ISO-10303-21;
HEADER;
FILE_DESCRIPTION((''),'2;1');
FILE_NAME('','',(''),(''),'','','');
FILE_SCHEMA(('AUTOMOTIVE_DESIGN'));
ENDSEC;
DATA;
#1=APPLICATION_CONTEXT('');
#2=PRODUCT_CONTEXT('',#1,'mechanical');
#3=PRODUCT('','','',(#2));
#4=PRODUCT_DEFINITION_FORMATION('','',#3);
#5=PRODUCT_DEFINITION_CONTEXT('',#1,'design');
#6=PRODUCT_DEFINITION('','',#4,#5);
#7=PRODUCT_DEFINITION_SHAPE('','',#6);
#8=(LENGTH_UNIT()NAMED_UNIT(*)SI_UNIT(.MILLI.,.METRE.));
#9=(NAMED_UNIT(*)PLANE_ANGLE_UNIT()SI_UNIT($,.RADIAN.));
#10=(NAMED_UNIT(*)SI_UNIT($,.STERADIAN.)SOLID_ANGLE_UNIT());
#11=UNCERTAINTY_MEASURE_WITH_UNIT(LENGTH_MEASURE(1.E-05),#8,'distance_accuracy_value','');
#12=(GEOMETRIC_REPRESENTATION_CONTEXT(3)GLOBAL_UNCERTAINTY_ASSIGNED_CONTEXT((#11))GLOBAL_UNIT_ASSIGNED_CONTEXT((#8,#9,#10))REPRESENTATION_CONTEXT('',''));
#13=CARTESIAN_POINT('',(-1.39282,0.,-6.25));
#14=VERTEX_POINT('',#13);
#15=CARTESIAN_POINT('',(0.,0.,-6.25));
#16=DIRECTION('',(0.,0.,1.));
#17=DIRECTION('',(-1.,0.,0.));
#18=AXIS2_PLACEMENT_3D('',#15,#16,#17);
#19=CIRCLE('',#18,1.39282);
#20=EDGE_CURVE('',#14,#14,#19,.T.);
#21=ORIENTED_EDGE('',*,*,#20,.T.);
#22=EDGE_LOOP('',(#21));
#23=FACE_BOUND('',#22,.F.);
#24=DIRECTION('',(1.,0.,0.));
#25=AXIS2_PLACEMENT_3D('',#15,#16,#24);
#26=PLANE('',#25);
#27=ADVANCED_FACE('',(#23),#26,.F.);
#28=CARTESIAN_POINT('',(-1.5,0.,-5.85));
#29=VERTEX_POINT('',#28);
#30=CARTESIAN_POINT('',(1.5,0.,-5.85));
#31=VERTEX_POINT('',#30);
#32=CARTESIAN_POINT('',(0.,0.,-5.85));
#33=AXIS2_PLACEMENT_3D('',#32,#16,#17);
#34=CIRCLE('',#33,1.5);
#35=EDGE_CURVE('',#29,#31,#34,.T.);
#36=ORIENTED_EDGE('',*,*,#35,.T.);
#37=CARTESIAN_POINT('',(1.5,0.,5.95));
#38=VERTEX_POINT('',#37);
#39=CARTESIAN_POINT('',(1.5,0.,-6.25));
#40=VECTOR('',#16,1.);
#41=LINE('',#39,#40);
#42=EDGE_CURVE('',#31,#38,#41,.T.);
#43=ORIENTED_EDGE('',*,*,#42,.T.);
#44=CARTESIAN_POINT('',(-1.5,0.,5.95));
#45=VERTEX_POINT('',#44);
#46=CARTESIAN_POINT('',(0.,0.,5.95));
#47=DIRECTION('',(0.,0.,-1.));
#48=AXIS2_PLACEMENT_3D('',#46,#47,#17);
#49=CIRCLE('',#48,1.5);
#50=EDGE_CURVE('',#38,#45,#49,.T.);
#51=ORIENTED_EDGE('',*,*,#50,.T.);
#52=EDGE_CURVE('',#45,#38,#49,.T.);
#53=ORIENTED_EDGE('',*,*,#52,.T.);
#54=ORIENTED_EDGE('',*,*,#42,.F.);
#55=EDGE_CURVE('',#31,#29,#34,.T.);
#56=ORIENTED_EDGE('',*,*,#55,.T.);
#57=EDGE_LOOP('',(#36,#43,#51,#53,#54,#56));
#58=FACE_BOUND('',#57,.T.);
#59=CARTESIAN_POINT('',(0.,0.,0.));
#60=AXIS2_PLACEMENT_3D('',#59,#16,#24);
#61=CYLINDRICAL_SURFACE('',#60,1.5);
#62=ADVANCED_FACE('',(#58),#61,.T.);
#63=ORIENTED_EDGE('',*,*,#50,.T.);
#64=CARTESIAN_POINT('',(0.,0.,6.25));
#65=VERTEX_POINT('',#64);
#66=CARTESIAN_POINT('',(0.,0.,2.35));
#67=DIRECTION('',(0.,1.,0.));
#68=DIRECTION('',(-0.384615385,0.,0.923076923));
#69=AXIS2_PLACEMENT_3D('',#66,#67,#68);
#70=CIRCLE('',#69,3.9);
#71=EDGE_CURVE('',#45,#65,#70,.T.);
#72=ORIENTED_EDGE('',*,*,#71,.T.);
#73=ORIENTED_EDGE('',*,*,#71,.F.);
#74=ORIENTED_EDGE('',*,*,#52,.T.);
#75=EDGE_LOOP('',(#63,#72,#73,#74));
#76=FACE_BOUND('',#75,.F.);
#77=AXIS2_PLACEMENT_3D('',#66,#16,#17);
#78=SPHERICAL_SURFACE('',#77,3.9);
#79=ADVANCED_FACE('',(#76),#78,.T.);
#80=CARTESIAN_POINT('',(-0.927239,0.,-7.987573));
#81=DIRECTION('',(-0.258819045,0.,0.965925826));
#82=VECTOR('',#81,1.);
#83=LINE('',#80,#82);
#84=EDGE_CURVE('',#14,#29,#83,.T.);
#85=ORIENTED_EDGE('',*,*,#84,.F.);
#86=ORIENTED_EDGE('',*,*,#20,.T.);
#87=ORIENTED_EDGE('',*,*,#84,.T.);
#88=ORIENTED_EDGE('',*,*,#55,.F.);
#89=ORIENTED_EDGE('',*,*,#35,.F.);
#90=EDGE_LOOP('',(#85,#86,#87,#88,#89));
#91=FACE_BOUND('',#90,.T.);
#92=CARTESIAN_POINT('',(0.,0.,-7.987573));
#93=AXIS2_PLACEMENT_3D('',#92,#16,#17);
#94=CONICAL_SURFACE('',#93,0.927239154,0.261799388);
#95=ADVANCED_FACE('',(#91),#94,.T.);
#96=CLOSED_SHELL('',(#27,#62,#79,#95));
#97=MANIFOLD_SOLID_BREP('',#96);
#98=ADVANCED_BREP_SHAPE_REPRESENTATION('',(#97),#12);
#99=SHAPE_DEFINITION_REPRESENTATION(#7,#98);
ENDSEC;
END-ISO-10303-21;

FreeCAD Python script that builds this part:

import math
import FreeCAD as App
import Part
import Sketcher

V = App.Vector
Q = App.Units.Quantity


def add_polygon(sketch, points):
    """Adds a closed chain of lines whose ends are joined by coincident constraints."""
    first, n = sketch.GeometryCount, len(points)
    for a, b in zip(points, points[1:] + points[:1]):
        sketch.addGeometry(Part.LineSegment(App.Vector(*a, 0), App.Vector(*b, 0)), False)
    for i in range(n):
        sketch.addConstraint(Sketcher.Constraint("Coincident", first + i, 2, first + (i + 1) % n, 1))

doc = App.newDocument("Part")
body = doc.addObject("PartDesign::Body", "Body")

sketch1 = body.newObject("Sketcher::SketchObject", "Sketch")
sketch1.AttachmentSupport = (doc.getObject("XY_Plane"), [""])
sketch1.MapMode = "FlatFace"
sketch1.addGeometry(Part.Circle(V(0, 0, 0), V(0, 0, 1), 1.5), False)
sketch1.addConstraint([
    Sketcher.Constraint("Coincident", 0, 3, -1, 1),
    Sketcher.Constraint("Diameter", 0, Q("3 mm")),
])
pad1 = body.newObject("PartDesign::Pad", "Pad")
pad1.Profile = sketch1
pad1.Length = 12.5
pad1.Midplane = True

sketch2 = body.newObject("Sketcher::SketchObject", "Sketch001")
sketch2.AttachmentSupport = (doc.getObject("XZ_Plane"), [""])
sketch2.MapMode = "FlatFace"
sketch2.addGeometry([
    Part.LineSegment(V(-1.66, 5.95, 0), V(-1.5, 5.95, 0)),
    Part.ArcOfCircle(Part.Circle(V(0, 2.35, 0), V(0, 0, 1), 3.9), math.radians(90), math.radians(113)),
    Part.LineSegment(V(0, 6.25, 0), V(0, 6.35, 0)),
    Part.LineSegment(V(0, 6.35, 0), V(-1.66, 6.35, 0)),
    Part.LineSegment(V(-1.66, 6.35, 0), V(-1.66, 5.95, 0)),
], False)
sketch2.addConstraint([
    Sketcher.Constraint("Coincident", 0, 2, 1, 2),
    Sketcher.Constraint("Coincident", 1, 1, 2, 1),
    Sketcher.Constraint("Coincident", 2, 2, 3, 1),
    Sketcher.Constraint("Coincident", 3, 2, 4, 1),
    Sketcher.Constraint("Coincident", 4, 2, 0, 1),
    Sketcher.Constraint("Horizontal", 0),
    Sketcher.Constraint("Vertical", 2),
    Sketcher.Constraint("Horizontal", 3),
    Sketcher.Constraint("Vertical", 4),
    Sketcher.Constraint("PointOnObject", 1, 3, -2),
    Sketcher.Constraint("PointOnObject", 1, 1, -2),
    Sketcher.Constraint("Radius", 1, Q("3.9 mm")),
    Sketcher.Constraint("DistanceX", 0, 2, -1, 1, Q("1.5 mm")),
    Sketcher.Constraint("DistanceY", -1, 1, 1, 3, Q("2.35 mm")),
    Sketcher.Constraint("DistanceX", 0, 1, 0, 2, Q("0.158588 mm")),
    Sketcher.Constraint("DistanceY", 2, 1, 2, 2, Q("0.100237 mm")),
])
groove = body.newObject("PartDesign::Groove", "Groove")
groove.Profile = sketch2
groove.ReferenceAxis = (sketch2, ["V_Axis"])
groove.Angle = 360

sketch3 = body.newObject("Sketcher::SketchObject", "Sketch002")
sketch3.AttachmentSupport = (doc.getObject("XZ_Plane"), [""])
sketch3.MapMode = "FlatFace"
add_polygon(sketch3, [(-0.9, -8), (-1.5, -5.8), (-1.5, -8)])
sketch3.addConstraint([
    Sketcher.Constraint("Vertical", 1),
    Sketcher.Constraint("Horizontal", 2),
    Sketcher.Constraint("Angle", 0, Q("105 deg")),
    Sketcher.Constraint("DistanceX", 0, 2, -1, 1, Q("1.5 mm")),
    Sketcher.Constraint("DistanceY", 0, 2, -1, 1, Q("5.85 mm")),
    Sketcher.Constraint("DistanceX", 2, 1, 2, 2, Q("0.572761 mm")),
])
groove2 = body.newObject("PartDesign::Groove", "Groove001")
groove2.Profile = sketch3
groove2.ReferenceAxis = (sketch3, ["V_Axis"])
groove2.Angle = 360

doc.recompute()
